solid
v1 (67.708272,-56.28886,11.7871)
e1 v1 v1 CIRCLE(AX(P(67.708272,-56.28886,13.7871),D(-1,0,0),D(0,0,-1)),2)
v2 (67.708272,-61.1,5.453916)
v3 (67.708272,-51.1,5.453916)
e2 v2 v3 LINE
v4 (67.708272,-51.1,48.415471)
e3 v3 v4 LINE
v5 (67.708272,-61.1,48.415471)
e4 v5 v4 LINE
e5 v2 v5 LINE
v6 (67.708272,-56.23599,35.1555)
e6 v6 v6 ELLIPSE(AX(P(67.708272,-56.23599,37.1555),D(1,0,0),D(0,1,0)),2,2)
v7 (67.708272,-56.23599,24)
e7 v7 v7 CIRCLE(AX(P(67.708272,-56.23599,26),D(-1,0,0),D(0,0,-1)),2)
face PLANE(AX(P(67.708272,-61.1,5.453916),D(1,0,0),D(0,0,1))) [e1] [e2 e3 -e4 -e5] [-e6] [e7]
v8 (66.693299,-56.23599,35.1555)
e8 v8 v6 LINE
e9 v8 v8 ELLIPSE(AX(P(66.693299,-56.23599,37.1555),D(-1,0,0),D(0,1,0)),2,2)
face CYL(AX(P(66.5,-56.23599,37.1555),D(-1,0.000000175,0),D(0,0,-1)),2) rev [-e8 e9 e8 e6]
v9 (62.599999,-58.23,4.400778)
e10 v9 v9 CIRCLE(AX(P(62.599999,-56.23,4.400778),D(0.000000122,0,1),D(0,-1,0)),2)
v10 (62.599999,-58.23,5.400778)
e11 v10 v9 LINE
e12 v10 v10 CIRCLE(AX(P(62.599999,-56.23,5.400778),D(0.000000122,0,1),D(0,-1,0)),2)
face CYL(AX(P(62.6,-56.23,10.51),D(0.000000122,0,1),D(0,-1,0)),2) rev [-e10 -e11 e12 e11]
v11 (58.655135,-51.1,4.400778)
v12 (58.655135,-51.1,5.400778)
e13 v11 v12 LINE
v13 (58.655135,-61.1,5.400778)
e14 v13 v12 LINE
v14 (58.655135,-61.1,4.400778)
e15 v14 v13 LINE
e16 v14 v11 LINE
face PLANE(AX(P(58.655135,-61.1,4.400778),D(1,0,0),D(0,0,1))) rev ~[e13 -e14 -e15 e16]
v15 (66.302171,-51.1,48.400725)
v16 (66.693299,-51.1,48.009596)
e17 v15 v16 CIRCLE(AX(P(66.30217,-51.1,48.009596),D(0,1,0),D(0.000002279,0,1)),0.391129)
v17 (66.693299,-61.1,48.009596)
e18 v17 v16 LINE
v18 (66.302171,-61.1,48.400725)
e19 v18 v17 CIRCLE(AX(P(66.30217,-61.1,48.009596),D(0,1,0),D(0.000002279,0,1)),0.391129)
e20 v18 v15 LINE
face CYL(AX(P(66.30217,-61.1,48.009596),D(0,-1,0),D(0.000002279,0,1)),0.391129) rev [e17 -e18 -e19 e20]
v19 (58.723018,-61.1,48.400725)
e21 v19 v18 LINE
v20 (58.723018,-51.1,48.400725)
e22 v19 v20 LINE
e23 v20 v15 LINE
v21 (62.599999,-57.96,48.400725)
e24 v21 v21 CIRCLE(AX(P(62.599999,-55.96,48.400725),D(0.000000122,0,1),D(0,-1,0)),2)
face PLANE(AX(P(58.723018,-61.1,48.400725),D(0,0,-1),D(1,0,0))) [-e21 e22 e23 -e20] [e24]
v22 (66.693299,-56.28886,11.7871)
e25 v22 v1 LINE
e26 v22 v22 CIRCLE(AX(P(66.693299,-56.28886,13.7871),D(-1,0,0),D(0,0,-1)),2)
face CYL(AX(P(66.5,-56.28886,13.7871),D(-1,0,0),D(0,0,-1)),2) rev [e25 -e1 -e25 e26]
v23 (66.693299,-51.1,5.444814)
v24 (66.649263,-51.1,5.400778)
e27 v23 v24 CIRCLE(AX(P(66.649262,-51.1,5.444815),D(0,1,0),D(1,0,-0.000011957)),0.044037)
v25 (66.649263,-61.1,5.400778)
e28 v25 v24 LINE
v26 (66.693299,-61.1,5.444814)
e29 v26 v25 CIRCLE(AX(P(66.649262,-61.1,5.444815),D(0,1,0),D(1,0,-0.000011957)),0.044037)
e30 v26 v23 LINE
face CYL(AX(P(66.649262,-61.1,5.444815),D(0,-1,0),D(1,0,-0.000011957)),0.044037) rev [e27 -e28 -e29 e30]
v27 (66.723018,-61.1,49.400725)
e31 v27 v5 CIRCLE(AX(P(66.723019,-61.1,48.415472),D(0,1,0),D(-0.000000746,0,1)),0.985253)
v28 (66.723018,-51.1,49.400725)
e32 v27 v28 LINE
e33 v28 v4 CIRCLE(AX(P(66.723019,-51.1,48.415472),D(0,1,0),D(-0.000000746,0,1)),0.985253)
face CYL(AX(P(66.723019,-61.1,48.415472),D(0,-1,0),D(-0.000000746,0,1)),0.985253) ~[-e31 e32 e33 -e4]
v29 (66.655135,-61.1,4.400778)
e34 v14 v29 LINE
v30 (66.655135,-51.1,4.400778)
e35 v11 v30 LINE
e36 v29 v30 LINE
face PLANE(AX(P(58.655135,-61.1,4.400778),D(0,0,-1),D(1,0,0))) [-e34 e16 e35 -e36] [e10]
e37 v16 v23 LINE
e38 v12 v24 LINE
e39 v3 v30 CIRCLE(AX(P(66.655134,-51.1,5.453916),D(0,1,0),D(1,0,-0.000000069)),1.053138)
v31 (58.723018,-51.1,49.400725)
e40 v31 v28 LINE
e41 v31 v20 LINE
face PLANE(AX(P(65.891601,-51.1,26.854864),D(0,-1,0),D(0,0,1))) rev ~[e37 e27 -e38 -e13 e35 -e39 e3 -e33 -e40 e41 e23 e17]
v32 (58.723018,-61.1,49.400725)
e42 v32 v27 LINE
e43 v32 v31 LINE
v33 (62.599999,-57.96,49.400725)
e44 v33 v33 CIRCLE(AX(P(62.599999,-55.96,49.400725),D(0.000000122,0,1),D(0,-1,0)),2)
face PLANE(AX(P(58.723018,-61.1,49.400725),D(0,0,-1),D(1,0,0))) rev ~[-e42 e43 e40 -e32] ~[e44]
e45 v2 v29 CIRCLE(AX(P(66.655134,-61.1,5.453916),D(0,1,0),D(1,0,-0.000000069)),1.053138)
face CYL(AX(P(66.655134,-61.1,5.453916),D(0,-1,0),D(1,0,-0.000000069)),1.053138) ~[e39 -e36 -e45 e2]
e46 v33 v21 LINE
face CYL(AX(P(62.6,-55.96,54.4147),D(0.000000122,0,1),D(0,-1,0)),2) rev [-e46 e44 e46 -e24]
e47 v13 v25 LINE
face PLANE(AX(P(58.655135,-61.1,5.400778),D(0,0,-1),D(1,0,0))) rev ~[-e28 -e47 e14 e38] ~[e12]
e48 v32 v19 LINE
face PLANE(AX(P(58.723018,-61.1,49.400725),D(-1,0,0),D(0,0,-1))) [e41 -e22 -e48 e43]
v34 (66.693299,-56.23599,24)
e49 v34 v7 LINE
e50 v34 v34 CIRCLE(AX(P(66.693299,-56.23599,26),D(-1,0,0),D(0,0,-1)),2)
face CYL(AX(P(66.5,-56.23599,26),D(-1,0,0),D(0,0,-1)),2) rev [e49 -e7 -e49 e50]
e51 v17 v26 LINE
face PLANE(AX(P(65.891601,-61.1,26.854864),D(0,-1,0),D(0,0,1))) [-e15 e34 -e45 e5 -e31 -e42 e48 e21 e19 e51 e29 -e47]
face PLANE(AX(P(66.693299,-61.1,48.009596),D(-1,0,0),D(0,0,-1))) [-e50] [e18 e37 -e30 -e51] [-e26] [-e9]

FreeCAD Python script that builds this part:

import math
import FreeCAD as App
import Part
import Sketcher

V = App.Vector
Q = App.Units.Quantity

doc = App.newDocument("Part")
body = doc.addObject("PartDesign::Body", "Body")

# Sketch on XY plane
sketch1 = body.newObject("Sketcher::SketchObject", "Sketch")
sketch1.AttachmentSupport = (doc.getObject("XY_Plane"), [""])
sketch1.MapMode = "FlatFace"
sketch1.addGeometry(Part.Circle(V(0, 0, 0), V(0, 0, 1), 2), False)
sketch1.addConstraint([
    Sketcher.Constraint("Coincident", 0, 3, -1, 1),
    Sketcher.Constraint("Diameter", 0, Q("4 mm")),
])
pad1 = body.newObject("PartDesign::Pad", "Pad")
pad1.Profile = sketch1
pad1.Length = 10
body2 = doc.addObject("PartDesign::Body", "Body001")
doc.recompute()

body.Placement = App.Placement(V(0, 0, 0), App.Rotation(V(0, 1, 0), 90))
boolean = body2.newObject("PartDesign::Boolean", "Boolean")
boolean.Type = "Fuse"
boolean.addObjects([body])
body3 = doc.addObject("PartDesign::Body", "Body002")
doc.recompute()

body2.Placement = App.Placement(V(15.49, 3.9, 4.87), App.Rotation(V(0, 0, 1), 0.000007))
boolean2 = body3.newObject("PartDesign::Boolean", "Boolean001")
boolean2.Type = "Fuse"
boolean2.addObjects([body2])
body4 = doc.addObject("PartDesign::Body", "Body003")

# Sketch on XY plane
sketch2 = body4.newObject("Sketcher::SketchObject", "Sketch001")
sketch2.AttachmentSupport = (doc.getObject("XY_Plane003"), [""])
sketch2.MapMode = "FlatFace"
sketch2.addGeometry(Part.Circle(V(0, 0, 0), V(0, 0, 1), 2), False)
sketch2.addConstraint([
    Sketcher.Constraint("Coincident", 0, 3, -1, 1),
    Sketcher.Constraint("Diameter", 0, Q("4 mm")),
])
pad2 = body4.newObject("PartDesign::Pad", "Pad001")
pad2.Profile = sketch2
pad2.Length = 10
body5 = doc.addObject("PartDesign::Body", "Body004")
doc.recompute()

body4.Placement = App.Placement(V(0, 0, 0), App.Rotation(V(0, 1, 0), 90))
boolean3 = body5.newObject("PartDesign::Boolean", "Boolean002")
boolean3.Type = "Fuse"
boolean3.addObjects([body4])
body6 = doc.addObject("PartDesign::Body", "Body005")
doc.recompute()

body5.Placement = App.Placement(V(-28.4147, 3.9, 5.14), App.Rotation(V(0, 0, 1), 0.000007))
boolean4 = body6.newObject("PartDesign::Boolean", "Boolean003")
boolean4.Type = "Fuse"
boolean4.addObjects([body5])
body7 = doc.addObject("PartDesign::Body", "Body006")

# Sketch on XY plane
sketch3 = body7.newObject("Sketcher::SketchObject", "Sketch002")
sketch3.AttachmentSupport = (doc.getObject("XY_Plane006"), [""])
sketch3.MapMode = "FlatFace"
sketch3.addGeometry(Part.Circle(V(0, 0, 0), V(0, 0, 1), 2), False)
sketch3.addConstraint([
    Sketcher.Constraint("Coincident", 0, 3, -1, 1),
    Sketcher.Constraint("Diameter", 0, Q("4 mm")),
])
pad3 = body7.newObject("PartDesign::Pad", "Pad002")
pad3.Profile = sketch3
pad3.Length = 2
body8 = doc.addObject("PartDesign::Body", "Body007")
doc.recompute()

body7.Placement = App.Placement(V(0, 0, 0), App.Rotation(V(1, 0, 0), 271.492946))
boolean5 = body8.newObject("PartDesign::Boolean", "Boolean004")
boolean5.Type = "Fuse"
boolean5.addObjects([body7])
body9 = doc.addObject("PartDesign::Body", "Body008")
doc.recompute()

body8.Placement = App.Placement(V(0, 0, 0), App.Rotation(V(0, 1, 0), 272.98249))
boolean6 = body9.newObject("PartDesign::Boolean", "Boolean005")
boolean6.Type = "Fuse"
boolean6.addObjects([body8])
body10 = doc.addObject("PartDesign::Body", "Body009")
doc.recompute()

body9.Placement = App.Placement(V(-26, 5.29, 4.9), App.Rotation(V(0, 0, 1), 267.755985))
boolean7 = body10.newObject("PartDesign::Boolean", "Boolean006")
boolean7.Type = "Fuse"
boolean7.addObjects([body9])
body11 = doc.addObject("PartDesign::Body", "Body010")

# Sketch on XY plane
sketch4 = body11.newObject("Sketcher::SketchObject", "Sketch003")
sketch4.AttachmentSupport = (doc.getObject("XY_Plane010"), [""])
sketch4.MapMode = "FlatFace"
sketch4.addGeometry(Part.Circle(V(0, 0, 0), V(0, 0, 1), 2), False)
sketch4.addConstraint([
    Sketcher.Constraint("Coincident", 0, 3, -1, 1),
    Sketcher.Constraint("Diameter", 0, Q("4 mm")),
])
pad4 = body11.newObject("PartDesign::Pad", "Pad003")
pad4.Profile = sketch4
pad4.Length = 2
body12 = doc.addObject("PartDesign::Body", "Body011")
doc.recompute()

body11.Placement = App.Placement(V(-11.1555, 0, 4.86401), App.Rotation(V(1, 0, 0), 90.00001))
boolean8 = body12.newObject("PartDesign::Boolean", "Boolean007")
boolean8.Type = "Fuse"
boolean8.addObjects([body11])
body13 = doc.addObject("PartDesign::Body", "Body012")

# Sketch on XY plane
sketch5 = body13.newObject("Sketcher::SketchObject", "Sketch004")
sketch5.AttachmentSupport = (doc.getObject("XY_Plane012"), [""])
sketch5.MapMode = "FlatFace"
sketch5.addGeometry(Part.Circle(V(0, 0, 0), V(0, 0, 1), 2), False)
sketch5.addConstraint([
    Sketcher.Constraint("Coincident", 0, 3, -1, 1),
    Sketcher.Constraint("Diameter", 0, Q("4 mm")),
])
pad5 = body13.newObject("PartDesign::Pad", "Pad004")
pad5.Profile = sketch5
pad5.Length = 2
body14 = doc.addObject("PartDesign::Body", "Body013")
doc.recompute()

body13.Placement = App.Placement(V(0, 0, 0), App.Rotation(V(1, 0, 0), 90))
boolean9 = body14.newObject("PartDesign::Boolean", "Boolean008")
boolean9.Type = "Fuse"
boolean9.addObjects([body13])
body15 = doc.addObject("PartDesign::Body", "Body014")
doc.recompute()

body14.Placement = App.Placement(V(0, 0, 4.86401), App.Rotation(V(0, 0, 1), 0))
boolean10 = body15.newObject("PartDesign::Boolean", "Boolean009")
boolean10.Type = "Fuse"
boolean10.addObjects([body14])
body16 = doc.addObject("PartDesign::Body", "Body015")

# Sketch on XY plane
sketch6 = body16.newObject("Sketcher::SketchObject", "Sketch005")
sketch6.AttachmentSupport = (doc.getObject("XY_Plane015"), [""])
sketch6.MapMode = "FlatFace"
sketch6.addGeometry(Part.Circle(V(0, 0, 0), V(0, 0, 1), 2), False)
sketch6.addConstraint([
    Sketcher.Constraint("Coincident", 0, 3, -1, 1),
    Sketcher.Constraint("Diameter", 0, Q("4 mm")),
])
pad6 = body16.newObject("PartDesign::Pad", "Pad005")
pad6.Profile = sketch6
pad6.Length = 2
body17 = doc.addObject("PartDesign::Body", "Body016")
doc.recompute()

body16.Placement = App.Placement(V(0, 0, 0), App.Rotation(V(1, 0, 0), 90))
boolean11 = body17.newObject("PartDesign::Boolean", "Boolean010")
boolean11.Type = "Fuse"
boolean11.addObjects([body16])
body18 = doc.addObject("PartDesign::Body", "Body017")
doc.recompute()

body17.Placement = App.Placement(V(12.2129, 0, 4.81114), App.Rotation(V(0, 0, 1), 0))
boolean12 = body18.newObject("PartDesign::Boolean", "Boolean011")
boolean12.Type = "Fuse"
boolean12.addObjects([body17])
body19 = doc.addObject("PartDesign::Body", "Body018")

# Sketch on XY plane
sketch7 = body19.newObject("Sketcher::SketchObject", "Sketch006")
sketch7.AttachmentSupport = (doc.getObject("XY_Plane018"), [""])
sketch7.MapMode = "FlatFace"
sketch7.addGeometry(Part.Circle(V(0, 0, 0), V(0, 0, 1), 2), False)
sketch7.addConstraint([
    Sketcher.Constraint("Coincident", 0, 3, -1, 1),
    Sketcher.Constraint("Diameter", 0, Q("4 mm")),
])
pad7 = body19.newObject("PartDesign::Pad", "Pad006")
pad7.Profile = sketch7
pad7.Length = 2
body20 = doc.addObject("PartDesign::Body", "Body019")
doc.recompute()

body19.Placement = App.Placement(V(0, 0, 0), App.Rotation(V(1, 0, 0), 271.492946))
boolean13 = body20.newObject("PartDesign::Boolean", "Boolean012")
boolean13.Type = "Fuse"
boolean13.addObjects([body19])
body21 = doc.addObject("PartDesign::Body", "Body020")
doc.recompute()

body20.Placement = App.Placement(V(0, 0, 0), App.Rotation(V(0, 1, 0), 272.98249))
boolean14 = body21.newObject("PartDesign::Boolean", "Boolean013")
boolean14.Type = "Fuse"
boolean14.addObjects([body20])
body22 = doc.addObject("PartDesign::Body", "Body021")
doc.recompute()

body21.Placement = App.Placement(V(25, 5.38, 4.9), App.Rotation(V(0, 0, 1), 267.755985))
boolean15 = body22.newObject("PartDesign::Boolean", "Boolean014")
boolean15.Type = "Fuse"
boolean15.addObjects([body21])
body23 = doc.addObject("PartDesign::Body", "Body022")

# Sketch on XY plane
sketch8 = body23.newObject("Sketcher::SketchObject", "Sketch007")
sketch8.AttachmentSupport = (doc.getObject("XY_Plane022"), [""])
sketch8.MapMode = "FlatFace"
sketch8.addGeometry([
    Part.LineSegment(V(-22.415, -1.208, 0), V(20.546, -1.208, 0)),  # 0
    Part.ArcOfCircle(Part.Circle(V(20.546, -0.155, 0), V(0, 0, 1), 1.053), math.radians(-90), math.radians(0)),  # 1
    Part.LineSegment(V(21.599, -0.155, 0), V(21.599, 7.845, 0)),  # 2
    Part.LineSegment(V(21.599, 7.845, 0), V(20.599, 7.845, 0)),  # 3
    Part.LineSegment(V(20.599, 7.845, 0), V(20.599, -0.149, 0)),  # 4
    Part.ArcOfCircle(Part.Circle(V(20.555, -0.149, 0), V(0, 0, 1), 0.044), math.radians(-90), math.radians(0)),  # 5
    Part.LineSegment(V(20.555, -0.193, 0), V(-22.01, -0.193, 0)),  # 6
    Part.ArcOfCircle(Part.Circle(V(-22.01, 0.198, 0), V(0, 0, 1), 0.391), math.radians(-180), math.radians(-90)),  # 7
    Part.LineSegment(V(-22.401, 0.198, 0), V(-22.401, 7.777, 0)),  # 8
    Part.LineSegment(V(-22.401, 7.777, 0), V(-23.401, 7.777, 0)),  # 9
    Part.LineSegment(V(-23.401, 7.777, 0), V(-23.401, -0.223, 0)),  # 10
    Part.ArcOfCircle(Part.Circle(V(-22.415, -0.223, 0), V(0, 0, 1), 0.985), math.radians(180), math.radians(270)),  # 11
], False)
sketch8.addConstraint([
    Sketcher.Constraint("Tangent", 0, 2, 1, 1),
    Sketcher.Constraint("Tangent", 1, 2, 2, 1),
    Sketcher.Constraint("Coincident", 2, 2, 3, 1),
    Sketcher.Constraint("Coincident", 3, 2, 4, 1),
    Sketcher.Constraint("Coincident", 4, 2, 5, 2),
    Sketcher.Constraint("Coincident", 5, 1, 6, 1),
    Sketcher.Constraint("Tangent", 6, 2, 7, 2),
    Sketcher.Constraint("Coincident", 7, 1, 8, 1),
    Sketcher.Constraint("Coincident", 8, 2, 9, 1),
    Sketcher.Constraint("Coincident", 9, 2, 10, 1),
    Sketcher.Constraint("Tangent", 10, 2, 11, 1),
    Sketcher.Constraint("Tangent", 11, 2, 0, 1),
    Sketcher.Constraint("Horizontal", 0),
    Sketcher.Constraint("Vertical", 2),
    Sketcher.Constraint("Horizontal", 3),
    Sketcher.Constraint("Vertical", 4),
    Sketcher.Constraint("Horizontal", 6),
    Sketcher.Constraint("Vertical", 8),
    Sketcher.Constraint("Horizontal", 9),
    Sketcher.Constraint("Vertical", 10),
    Sketcher.Constraint("Horizontal", 5, 3, 4, 2),
    Sketcher.Constraint("Equal", 3, 9),
    Sketcher.Constraint("Equal", 2, 10),
    Sketcher.Constraint("DistanceX", 3, 2, 3, 1, Q("1 mm")),
    Sketcher.Constraint("DistanceY", 2, 1, 2, 2, Q("8 mm")),
    Sketcher.Constraint("Radius", 1, Q("1.053138 mm")),
    Sketcher.Constraint("Radius", 7, Q("0.391129 mm")),
    Sketcher.Constraint("Radius", 5, Q("0.044037 mm")),
    Sketcher.Constraint("Radius", 11, Q("0.985253 mm")),
    Sketcher.Constraint("DistanceX", 6, 2, 6, 1, Q("42.564782 mm")),
    Sketcher.Constraint("DistanceY", 4, 2, 4, 1, Q("7.994128 mm")),
    Sketcher.Constraint("DistanceY", 5, 1, -1, 1, Q("0.193299 mm")),
    Sketcher.Constraint("DistanceX", 0, 2, 5, 1, Q("0.009102 mm")),
    Sketcher.Constraint("DistanceY", 11, 2, 7, 1, Q("1.406101 mm")),
    Sketcher.Constraint("DistanceX", 11, 3, -1, 1, Q("22.415472 mm")),
])
pad8 = body23.newObject("PartDesign::Pad", "Pad007")
pad8.Profile = sketch8
pad8.Length = 10
doc.recompute()

boolean16 = body23.newObject("PartDesign::Boolean", "Boolean015")
boolean16.Type = "Cut"
boolean16.addObjects([body22])
doc.recompute()

boolean17 = body23.newObject("PartDesign::Boolean", "Boolean016")
boolean17.Type = "Cut"
boolean17.addObjects([body18])
doc.recompute()

boolean18 = body23.newObject("PartDesign::Boolean", "Boolean017")
boolean18.Type = "Cut"
boolean18.addObjects([body15])
doc.recompute()

boolean19 = body23.newObject("PartDesign::Boolean", "Boolean018")
boolean19.Type = "Cut"
boolean19.addObjects([body12])
doc.recompute()

boolean20 = body23.newObject("PartDesign::Boolean", "Boolean019")
boolean20.Type = "Cut"
boolean20.addObjects([body10])
doc.recompute()

boolean21 = body23.newObject("PartDesign::Boolean", "Boolean020")
boolean21.Type = "Cut"
boolean21.addObjects([body6])
doc.recompute()

boolean22 = body23.newObject("PartDesign::Boolean", "Boolean021")
boolean22.Type = "Cut"
boolean22.addObjects([body3])
body24 = doc.addObject("PartDesign::Body", "Body023")
doc.recompute()

body23.Placement = App.Placement(V(0, 0, 0), App.Rotation(V(0, 1, 0), 90))
boolean23 = body24.newObject("PartDesign::Boolean", "Boolean022")
boolean23.Type = "Fuse"
boolean23.addObjects([body23])
body25 = doc.addObject("PartDesign::Body", "Body024")
doc.recompute()

body24.Placement = App.Placement(V(66.5, -61.1, 26), App.Rotation(V(0, 0, 1), 90))
boolean24 = body25.newObject("PartDesign::Boolean", "Boolean023")
boolean24.Type = "Fuse"
boolean24.addObjects([body24])

doc.recompute()
